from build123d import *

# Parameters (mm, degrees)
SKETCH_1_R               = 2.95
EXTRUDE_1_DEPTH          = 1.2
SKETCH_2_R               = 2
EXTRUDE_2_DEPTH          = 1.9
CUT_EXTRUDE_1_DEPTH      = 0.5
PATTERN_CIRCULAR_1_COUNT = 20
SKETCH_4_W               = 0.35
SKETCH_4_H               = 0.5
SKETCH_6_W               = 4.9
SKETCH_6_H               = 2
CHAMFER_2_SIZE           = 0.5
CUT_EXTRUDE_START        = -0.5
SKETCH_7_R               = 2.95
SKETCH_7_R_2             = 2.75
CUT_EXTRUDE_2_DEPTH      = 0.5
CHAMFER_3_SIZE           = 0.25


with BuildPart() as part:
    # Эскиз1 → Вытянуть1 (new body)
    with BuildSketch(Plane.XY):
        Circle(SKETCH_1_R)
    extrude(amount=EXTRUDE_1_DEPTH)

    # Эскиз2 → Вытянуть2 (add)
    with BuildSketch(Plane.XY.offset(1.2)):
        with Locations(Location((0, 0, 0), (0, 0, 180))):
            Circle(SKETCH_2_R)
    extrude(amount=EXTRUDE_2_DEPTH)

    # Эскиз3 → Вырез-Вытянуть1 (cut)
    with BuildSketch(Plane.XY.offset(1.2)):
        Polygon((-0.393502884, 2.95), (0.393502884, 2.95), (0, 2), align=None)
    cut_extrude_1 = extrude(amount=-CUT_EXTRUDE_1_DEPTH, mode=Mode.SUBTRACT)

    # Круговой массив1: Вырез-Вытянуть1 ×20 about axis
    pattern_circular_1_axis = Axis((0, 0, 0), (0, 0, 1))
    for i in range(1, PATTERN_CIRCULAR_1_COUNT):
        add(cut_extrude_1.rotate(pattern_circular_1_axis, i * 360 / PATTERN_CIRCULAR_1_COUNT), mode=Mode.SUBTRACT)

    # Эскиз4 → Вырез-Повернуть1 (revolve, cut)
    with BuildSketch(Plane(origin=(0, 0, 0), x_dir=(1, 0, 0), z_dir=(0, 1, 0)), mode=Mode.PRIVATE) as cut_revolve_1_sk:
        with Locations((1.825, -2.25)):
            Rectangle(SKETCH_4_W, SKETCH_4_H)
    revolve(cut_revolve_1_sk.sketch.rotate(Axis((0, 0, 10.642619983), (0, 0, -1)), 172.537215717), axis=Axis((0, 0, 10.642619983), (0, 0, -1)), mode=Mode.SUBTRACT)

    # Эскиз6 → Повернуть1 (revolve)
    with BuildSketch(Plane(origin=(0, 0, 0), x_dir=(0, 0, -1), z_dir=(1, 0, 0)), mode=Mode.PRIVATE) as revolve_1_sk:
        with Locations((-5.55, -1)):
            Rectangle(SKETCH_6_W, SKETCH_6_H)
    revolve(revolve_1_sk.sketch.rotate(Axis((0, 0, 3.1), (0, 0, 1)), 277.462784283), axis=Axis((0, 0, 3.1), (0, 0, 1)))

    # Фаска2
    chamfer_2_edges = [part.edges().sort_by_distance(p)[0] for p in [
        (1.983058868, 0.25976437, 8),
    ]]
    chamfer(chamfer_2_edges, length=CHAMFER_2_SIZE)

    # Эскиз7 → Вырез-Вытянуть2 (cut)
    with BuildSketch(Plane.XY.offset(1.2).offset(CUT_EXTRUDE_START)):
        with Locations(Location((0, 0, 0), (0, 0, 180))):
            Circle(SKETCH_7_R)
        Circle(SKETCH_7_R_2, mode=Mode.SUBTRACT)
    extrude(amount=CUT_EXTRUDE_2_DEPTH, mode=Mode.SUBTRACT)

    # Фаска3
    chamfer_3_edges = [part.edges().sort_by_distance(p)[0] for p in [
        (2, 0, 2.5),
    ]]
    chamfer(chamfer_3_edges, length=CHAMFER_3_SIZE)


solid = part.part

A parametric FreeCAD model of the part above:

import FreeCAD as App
import Part
import Sketcher

V = App.Vector
Q = App.Units.Quantity


def edges_at(feature, points):
    """Names of the edges that pass closest to the given points."""
    edges = feature.Shape.Edges
    near = lambda p: min(range(len(edges)), key=lambda i: edges[i].distToShape(Part.Vertex(*p))[0])
    return sorted({f"Edge{near(p) + 1}" for p in points})

doc = App.newDocument("Part")
params = doc.addObject("Spreadsheet::Sheet", "Params")
for row, (alias, value) in enumerate([
    ("sketch1_diameter", "5.9 mm"),
    ("pad1_length", "1.2 mm"),
    ("sketch2_diameter", "4 mm"),
    ("pad2_length", "1.9 mm"),
    ("pocket1_length", "0.5 mm"),
    ("sketch4_height", "0.5 mm"),
    ("sketch4_width", "0.35 mm"),
    ("groove_angle", "360 deg"),
    ("sketch5_width", "2 mm"),
    ("sketch5_height", "4.9 mm"),
    ("revolution_angle", "360 deg"),
    ("chamfer_size", "0.5 mm"),
    ("sketch6_diameter", "5.9 mm"),
    ("sketch6_diameter2", "5.5 mm"),
    ("pocket2_length", "0.5 mm"),
    ("chamfer2_size", "0.25 mm"),
], start=1):
    params.set(f"A{row}", alias)
    params.set(f"B{row}", "=" + value)
    params.setAlias(f"B{row}", alias)

body = doc.addObject("PartDesign::Body", "Body")

sketch1 = doc.addObject("Sketcher::SketchObject", "Sketch")
body.addObject(sketch1)
sketch1.AttachmentSupport = (doc.XY_Plane, [""])
sketch1.MapMode = "FlatFace"
sketch1.addGeometry(Part.Circle(V(0, 0, 0), V(0, 0, 1), 3), False)
sketch1.addConstraint(Sketcher.Constraint("Coincident", 0, 3, -1, 1))
sketch1.addConstraint(Sketcher.Constraint("Diameter", 0, Q("5.9 mm")))
sketch1.setExpression("Constraints[1]", "Params.sketch1_diameter")
pad1 = doc.addObject("PartDesign::Pad", "Pad")
body.addObject(pad1)
pad1.Profile = sketch1
pad1.setExpression("Length", "Params.pad1_length")

sketch2 = doc.addObject("Sketcher::SketchObject", "Sketch001")
body.addObject(sketch2)
sketch2.AttachmentSupport = (doc.XY_Plane, [""])
sketch2.MapMode = "FlatFace"
sketch2.AttachmentOffset = App.Placement(V(0, 0, 1.2), App.Rotation())
sketch2.addGeometry(Part.Circle(V(0, 0, 0), V(0, 0, 1), 2), False)
sketch2.addConstraint(Sketcher.Constraint("Coincident", 0, 3, -1, 1))
sketch2.addConstraint(Sketcher.Constraint("Diameter", 0, Q("4 mm")))
sketch2.setExpression("Constraints[1]", "Params.sketch2_diameter")
pad2 = doc.addObject("PartDesign::Pad", "Pad001")
body.addObject(pad2)
pad2.Profile = sketch2
pad2.setExpression("Length", "Params.pad2_length")

sketch3 = doc.addObject("Sketcher::SketchObject", "Sketch002")
body.addObject(sketch3)
sketch3.AttachmentSupport = (doc.XY_Plane, [""])
sketch3.MapMode = "FlatFace"
sketch3.AttachmentOffset = App.Placement(V(0, 0, 1.2), App.Rotation())
sketch3.addGeometry(Part.LineSegment(V(0.4, 3, 0), V(-0.4, 3, 0)), False)
sketch3.addGeometry(Part.LineSegment(V(-0.4, 3, 0), V(0, 2, 0)), False)
sketch3.addGeometry(Part.LineSegment(V(0, 2, 0), V(0.4, 3, 0)), False)
sketch3.addConstraint(Sketcher.Constraint("Coincident", 0, 2, 1, 1))
sketch3.addConstraint(Sketcher.Constraint("Coincident", 1, 2, 2, 1))
sketch3.addConstraint(Sketcher.Constraint("Coincident", 2, 2, 0, 1))
sketch3.addConstraint(Sketcher.Constraint("Horizontal", 0))
sketch3.addConstraint(Sketcher.Constraint("PointOnObject", 1, 2, -2))
sketch3.addConstraint(Sketcher.Constraint("Equal", 1, 2))
sketch3.addConstraint(Sketcher.Constraint("DistanceY", -1, 1, 1, 2, Q("2 mm")))
sketch3.addConstraint(Sketcher.Constraint("Angle", 1, Q("-67.5 deg")))
sketch3.addConstraint(Sketcher.Constraint("DistanceY", -1, 1, 0, 2, Q("2.95 mm")))
pocket1 = doc.addObject("PartDesign::Pocket", "Pocket")
body.addObject(pocket1)
pocket1.Profile = sketch3
pocket1.setExpression("Length", "Params.pocket1_length")
doc.recompute()

polarpattern = doc.addObject("PartDesign::PolarPattern", "PolarPattern")
body.addObject(polarpattern)
polarpattern.Originals = [pocket1]
polarpattern.Axis = (doc.Z_Axis, [""])
polarpattern.Angle = 360
polarpattern.Occurrences = 20
body.Tip = polarpattern

sketch4 = doc.addObject("Sketcher::SketchObject", "Sketch003")
body.addObject(sketch4)
sketch4.AttachmentSupport = (doc.XZ_Plane, [""])
sketch4.MapMode = "FlatFace"
sketch4.addGeometry(Part.LineSegment(V(1.65, 2, 0), V(1.65, 2.5, 0)), False)
sketch4.addGeometry(Part.LineSegment(V(1.65, 2.5, 0), V(2, 2.5, 0)), False)
sketch4.addGeometry(Part.LineSegment(V(2, 2.5, 0), V(2, 2, 0)), False)
sketch4.addGeometry(Part.LineSegment(V(2, 2, 0), V(1.65, 2, 0)), False)
sketch4.addConstraint(Sketcher.Constraint("Coincident", 0, 2, 1, 1))
sketch4.addConstraint(Sketcher.Constraint("Coincident", 1, 2, 2, 1))
sketch4.addConstraint(Sketcher.Constraint("Coincident", 2, 2, 3, 1))
sketch4.addConstraint(Sketcher.Constraint("Coincident", 3, 2, 0, 1))
sketch4.addConstraint(Sketcher.Constraint("Vertical", 0))
sketch4.addConstraint(Sketcher.Constraint("Horizontal", 1))
sketch4.addConstraint(Sketcher.Constraint("Vertical", 2))
sketch4.addConstraint(Sketcher.Constraint("Horizontal", 3))
sketch4.addConstraint(Sketcher.Constraint("DistanceY", 0, 1, 0, 2, Q("0.5 mm")))
sketch4.addConstraint(Sketcher.Constraint("DistanceX", -1, 1, 1, 2, Q("2 mm")))
sketch4.addConstraint(Sketcher.Constraint("DistanceY", -1, 1, 2, 2, Q("2 mm")))
sketch4.addConstraint(Sketcher.Constraint("DistanceX", 1, 1, 1, 2, Q("0.35 mm")))
sketch4.setExpression("Constraints[8]", "Params.sketch4_height")
sketch4.setExpression("Constraints[11]", "Params.sketch4_width")
groove = doc.addObject("PartDesign::Groove", "Groove")
body.addObject(groove)
groove.Profile = sketch4
groove.ReferenceAxis = (sketch4, ["V_Axis"])
groove.setExpression("Angle", "Params.groove_angle")

sketch5 = doc.addObject("Sketcher::SketchObject", "Sketch004")
body.addObject(sketch5)
sketch5.AttachmentSupport = (doc.YZ_Plane, [""])
sketch5.MapMode = "FlatFace"
sketch5.addGeometry(Part.LineSegment(V(0, 8, 0), V(-2, 8, 0)), False)
sketch5.addGeometry(Part.LineSegment(V(-2, 8, 0), V(-2, 3.1, 0)), False)
sketch5.addGeometry(Part.LineSegment(V(-2, 3.1, 0), V(0, 3.1, 0)), False)
sketch5.addGeometry(Part.LineSegment(V(0, 3.1, 0), V(0, 8, 0)), False)
sketch5.addConstraint(Sketcher.Constraint("Coincident", 0, 2, 1, 1))
sketch5.addConstraint(Sketcher.Constraint("Coincident", 1, 2, 2, 1))
sketch5.addConstraint(Sketcher.Constraint("Coincident", 2, 2, 3, 1))
sketch5.addConstraint(Sketcher.Constraint("Coincident", 3, 2, 0, 1))
sketch5.addConstraint(Sketcher.Constraint("Horizontal", 0))
sketch5.addConstraint(Sketcher.Constraint("Vertical", 1))
sketch5.addConstraint(Sketcher.Constraint("Horizontal", 2))
sketch5.addConstraint(Sketcher.Constraint("Vertical", 3))
sketch5.addConstraint(Sketcher.Constraint("PointOnObject", 2, 2, -2))
sketch5.addConstraint(Sketcher.Constraint("DistanceX", 0, 2, 0, 1, Q("2 mm")))
sketch5.addConstraint(Sketcher.Constraint("DistanceY", 1, 2, 1, 1, Q("4.9 mm")))
sketch5.addConstraint(Sketcher.Constraint("DistanceY", -1, 1, 0, 2, Q("8 mm")))
sketch5.setExpression("Constraints[9]", "Params.sketch5_width")
sketch5.setExpression("Constraints[10]", "Params.sketch5_height")
revolution = doc.addObject("PartDesign::Revolution", "Revolution")
body.addObject(revolution)
revolution.Profile = sketch5
revolution.ReferenceAxis = (sketch5, ["V_Axis"])
revolution.setExpression("Angle", "Params.revolution_angle")
doc.recompute()

chamfer = doc.addObject("PartDesign::Chamfer", "Chamfer")
body.addObject(chamfer)
chamfer.Base = (revolution, edges_at(revolution, [(1.983, 0.26, 8)]))
chamfer.setExpression("Size", "Params.chamfer_size")

sketch6 = doc.addObject("Sketcher::SketchObject", "Sketch005")
body.addObject(sketch6)
sketch6.AttachmentSupport = (doc.XY_Plane, [""])
sketch6.MapMode = "FlatFace"
sketch6.AttachmentOffset = App.Placement(V(0, 0, 0.7), App.Rotation())
sketch6.addGeometry(Part.Circle(V(0, 0, 0), V(0, 0, 1), 3), False)
sketch6.addGeometry(Part.Circle(V(0, 0, 0), V(0, 0, 1), 2.8), False)
sketch6.addConstraint(Sketcher.Constraint("Coincident", 0, 3, -1, 1))
sketch6.addConstraint(Sketcher.Constraint("Coincident", 1, 3, -1, 1))
sketch6.addConstraint(Sketcher.Constraint("Diameter", 0, Q("5.9 mm")))
sketch6.addConstraint(Sketcher.Constraint("Diameter", 1, Q("5.5 mm")))
sketch6.setExpression("Constraints[2]", "Params.sketch6_diameter")
sketch6.setExpression("Constraints[3]", "Params.sketch6_diameter2")
pocket2 = doc.addObject("PartDesign::Pocket", "Pocket001")
body.addObject(pocket2)
pocket2.Profile = sketch6
pocket2.setExpression("Length", "Params.pocket2_length")
pocket2.Reversed = True
doc.recompute()

chamfer2 = doc.addObject("PartDesign::Chamfer", "Chamfer001")
body.addObject(chamfer2)
chamfer2.Base = (pocket2, edges_at(pocket2, [(2, 0, 2.5)]))
chamfer2.setExpression("Size", "Params.chamfer2_size")

doc.recompute()
